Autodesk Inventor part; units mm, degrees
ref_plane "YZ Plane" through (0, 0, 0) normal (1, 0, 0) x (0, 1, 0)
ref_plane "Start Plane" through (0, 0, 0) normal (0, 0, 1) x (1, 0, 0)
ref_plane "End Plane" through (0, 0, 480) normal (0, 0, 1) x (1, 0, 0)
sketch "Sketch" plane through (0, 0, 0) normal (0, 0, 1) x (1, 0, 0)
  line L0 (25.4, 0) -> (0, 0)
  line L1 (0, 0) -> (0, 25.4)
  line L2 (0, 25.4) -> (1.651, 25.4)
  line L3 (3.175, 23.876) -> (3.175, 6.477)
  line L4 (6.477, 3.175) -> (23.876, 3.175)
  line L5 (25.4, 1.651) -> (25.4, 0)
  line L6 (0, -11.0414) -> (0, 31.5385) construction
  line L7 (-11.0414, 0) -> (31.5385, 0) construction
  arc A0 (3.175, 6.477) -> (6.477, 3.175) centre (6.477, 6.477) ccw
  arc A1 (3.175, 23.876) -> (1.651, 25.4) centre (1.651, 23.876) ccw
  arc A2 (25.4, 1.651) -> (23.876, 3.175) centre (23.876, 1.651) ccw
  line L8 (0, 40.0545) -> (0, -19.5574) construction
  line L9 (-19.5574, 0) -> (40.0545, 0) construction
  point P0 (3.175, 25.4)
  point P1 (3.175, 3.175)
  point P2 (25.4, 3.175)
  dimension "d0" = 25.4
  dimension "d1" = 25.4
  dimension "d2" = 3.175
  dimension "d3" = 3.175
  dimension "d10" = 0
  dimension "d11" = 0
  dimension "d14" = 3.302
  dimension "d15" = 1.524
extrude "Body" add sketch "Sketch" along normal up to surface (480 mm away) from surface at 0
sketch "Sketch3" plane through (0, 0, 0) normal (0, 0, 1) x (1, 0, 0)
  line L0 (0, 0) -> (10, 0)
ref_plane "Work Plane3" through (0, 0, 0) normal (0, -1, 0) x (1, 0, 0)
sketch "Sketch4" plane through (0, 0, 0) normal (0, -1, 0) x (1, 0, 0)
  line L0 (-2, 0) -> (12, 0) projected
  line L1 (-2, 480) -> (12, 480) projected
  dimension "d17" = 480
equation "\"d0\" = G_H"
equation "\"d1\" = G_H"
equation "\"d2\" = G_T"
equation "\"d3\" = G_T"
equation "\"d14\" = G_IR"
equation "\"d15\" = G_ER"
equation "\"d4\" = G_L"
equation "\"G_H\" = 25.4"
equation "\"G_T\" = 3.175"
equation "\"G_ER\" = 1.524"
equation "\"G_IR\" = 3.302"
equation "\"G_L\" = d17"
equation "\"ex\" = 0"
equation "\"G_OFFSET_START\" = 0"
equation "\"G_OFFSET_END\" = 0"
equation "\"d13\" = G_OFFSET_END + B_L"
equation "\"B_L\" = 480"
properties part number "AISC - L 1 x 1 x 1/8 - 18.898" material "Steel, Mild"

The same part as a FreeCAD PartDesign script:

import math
import FreeCAD as App
import Part
import Sketcher

V = App.Vector
Q = App.Units.Quantity

doc = App.newDocument("Part")
params = doc.addObject("Spreadsheet::Sheet", "Params")
for row, (alias, value) in enumerate([
    ("sketch1_width", "1 in"),
    ("sketch1_radius", "0.06 in"),
    ("sketch1_radius2", "0.13 in"),
    ("pad1_length", "480 mm"),
], start=1):
    params.set(f"A{row}", alias)
    params.set(f"B{row}", "=" + value)
    params.setAlias(f"B{row}", alias)

body = doc.addObject("PartDesign::Body", "Body")

# Sketch on XY plane
sketch1 = body.newObject("Sketcher::SketchObject", "Sketch")
sketch1.AttachmentSupport = (doc.getObject("XY_Plane"), [""])
sketch1.MapMode = "FlatFace"
sketch1.addGeometry(Part.LineSegment(V(0, 0, 0), V(25.4, 0, 0)), False)
sketch1.addGeometry(Part.LineSegment(V(25.4, 0, 0), V(25.4, 1.651, 0)), False)
sketch1.addGeometry(Part.ArcOfCircle(Part.Circle(V(23.876, 1.651, 0), V(0, 0, 1), 1.524), math.radians(0), math.radians(90)), False)
sketch1.addGeometry(Part.LineSegment(V(23.876, 3.175, 0), V(6.477, 3.175, 0)), False)
sketch1.addGeometry(Part.ArcOfCircle(Part.Circle(V(6.477, 6.477, 0), V(0, 0, 1), 3.302), math.radians(180), math.radians(270)), False)
sketch1.addGeometry(Part.LineSegment(V(3.175, 6.477, 0), V(3.175, 23.876, 0)), False)
sketch1.addGeometry(Part.ArcOfCircle(Part.Circle(V(1.651, 23.876, 0), V(0, 0, 1), 1.524), math.radians(0), math.radians(90)), False)
sketch1.addGeometry(Part.LineSegment(V(1.651, 25.4, 0), V(0, 25.4, 0)), False)
sketch1.addGeometry(Part.LineSegment(V(0, 25.4, 0), V(0, 0, 0)), False)
sketch1.addConstraint(Sketcher.Constraint("Coincident", 0, 2, 1, 1))
sketch1.addConstraint(Sketcher.Constraint("Tangent", 1, 2, 2, 1))
sketch1.addConstraint(Sketcher.Constraint("Tangent", 2, 2, 3, 1))
sketch1.addConstraint(Sketcher.Constraint("Tangent", 3, 2, 4, 2))
sketch1.addConstraint(Sketcher.Constraint("Tangent", 4, 1, 5, 1))
sketch1.addConstraint(Sketcher.Constraint("Tangent", 5, 2, 6, 1))
sketch1.addConstraint(Sketcher.Constraint("Tangent", 6, 2, 7, 1))
sketch1.addConstraint(Sketcher.Constraint("Coincident", 7, 2, 8, 1))
sketch1.addConstraint(Sketcher.Constraint("Coincident", 8, 2, 0, 1))
sketch1.addConstraint(Sketcher.Constraint("Horizontal", 0))
sketch1.addConstraint(Sketcher.Constraint("Vertical", 1))
sketch1.addConstraint(Sketcher.Constraint("Horizontal", 3))
sketch1.addConstraint(Sketcher.Constraint("Vertical", 5))
sketch1.addConstraint(Sketcher.Constraint("Horizontal", 7))
sketch1.addConstraint(Sketcher.Constraint("Vertical", 8))
sketch1.addConstraint(Sketcher.Constraint("Coincident", 8, 2, -1, 1))
sketch1.addConstraint(Sketcher.Constraint("Equal", 2, 6))
sketch1.addConstraint(Sketcher.Constraint("Equal", 7, 1))
sketch1.addConstraint(Sketcher.Constraint("Equal", 3, 5))
sketch1.addConstraint(Sketcher.Constraint("DistanceX", 0, 1, 0, 2, Q("1 in")))
sketch1.addConstraint(Sketcher.Constraint("Radius", 2, Q("0.06 in")))
sketch1.addConstraint(Sketcher.Constraint("Radius", 4, Q("0.13 in")))
sketch1.addConstraint(Sketcher.Constraint("DistanceY", -1, 1, 2, 2, Q("0.125 in")))
sketch1.setExpression("Constraints[19]", "Params.sketch1_width")
sketch1.setExpression("Constraints[20]", "Params.sketch1_radius")
sketch1.setExpression("Constraints[21]", "Params.sketch1_radius2")
pad1 = body.newObject("PartDesign::Pad", "Pad")
pad1.Profile = sketch1
pad1.setExpression("Length", "Params.pad1_length")

doc.recompute()
